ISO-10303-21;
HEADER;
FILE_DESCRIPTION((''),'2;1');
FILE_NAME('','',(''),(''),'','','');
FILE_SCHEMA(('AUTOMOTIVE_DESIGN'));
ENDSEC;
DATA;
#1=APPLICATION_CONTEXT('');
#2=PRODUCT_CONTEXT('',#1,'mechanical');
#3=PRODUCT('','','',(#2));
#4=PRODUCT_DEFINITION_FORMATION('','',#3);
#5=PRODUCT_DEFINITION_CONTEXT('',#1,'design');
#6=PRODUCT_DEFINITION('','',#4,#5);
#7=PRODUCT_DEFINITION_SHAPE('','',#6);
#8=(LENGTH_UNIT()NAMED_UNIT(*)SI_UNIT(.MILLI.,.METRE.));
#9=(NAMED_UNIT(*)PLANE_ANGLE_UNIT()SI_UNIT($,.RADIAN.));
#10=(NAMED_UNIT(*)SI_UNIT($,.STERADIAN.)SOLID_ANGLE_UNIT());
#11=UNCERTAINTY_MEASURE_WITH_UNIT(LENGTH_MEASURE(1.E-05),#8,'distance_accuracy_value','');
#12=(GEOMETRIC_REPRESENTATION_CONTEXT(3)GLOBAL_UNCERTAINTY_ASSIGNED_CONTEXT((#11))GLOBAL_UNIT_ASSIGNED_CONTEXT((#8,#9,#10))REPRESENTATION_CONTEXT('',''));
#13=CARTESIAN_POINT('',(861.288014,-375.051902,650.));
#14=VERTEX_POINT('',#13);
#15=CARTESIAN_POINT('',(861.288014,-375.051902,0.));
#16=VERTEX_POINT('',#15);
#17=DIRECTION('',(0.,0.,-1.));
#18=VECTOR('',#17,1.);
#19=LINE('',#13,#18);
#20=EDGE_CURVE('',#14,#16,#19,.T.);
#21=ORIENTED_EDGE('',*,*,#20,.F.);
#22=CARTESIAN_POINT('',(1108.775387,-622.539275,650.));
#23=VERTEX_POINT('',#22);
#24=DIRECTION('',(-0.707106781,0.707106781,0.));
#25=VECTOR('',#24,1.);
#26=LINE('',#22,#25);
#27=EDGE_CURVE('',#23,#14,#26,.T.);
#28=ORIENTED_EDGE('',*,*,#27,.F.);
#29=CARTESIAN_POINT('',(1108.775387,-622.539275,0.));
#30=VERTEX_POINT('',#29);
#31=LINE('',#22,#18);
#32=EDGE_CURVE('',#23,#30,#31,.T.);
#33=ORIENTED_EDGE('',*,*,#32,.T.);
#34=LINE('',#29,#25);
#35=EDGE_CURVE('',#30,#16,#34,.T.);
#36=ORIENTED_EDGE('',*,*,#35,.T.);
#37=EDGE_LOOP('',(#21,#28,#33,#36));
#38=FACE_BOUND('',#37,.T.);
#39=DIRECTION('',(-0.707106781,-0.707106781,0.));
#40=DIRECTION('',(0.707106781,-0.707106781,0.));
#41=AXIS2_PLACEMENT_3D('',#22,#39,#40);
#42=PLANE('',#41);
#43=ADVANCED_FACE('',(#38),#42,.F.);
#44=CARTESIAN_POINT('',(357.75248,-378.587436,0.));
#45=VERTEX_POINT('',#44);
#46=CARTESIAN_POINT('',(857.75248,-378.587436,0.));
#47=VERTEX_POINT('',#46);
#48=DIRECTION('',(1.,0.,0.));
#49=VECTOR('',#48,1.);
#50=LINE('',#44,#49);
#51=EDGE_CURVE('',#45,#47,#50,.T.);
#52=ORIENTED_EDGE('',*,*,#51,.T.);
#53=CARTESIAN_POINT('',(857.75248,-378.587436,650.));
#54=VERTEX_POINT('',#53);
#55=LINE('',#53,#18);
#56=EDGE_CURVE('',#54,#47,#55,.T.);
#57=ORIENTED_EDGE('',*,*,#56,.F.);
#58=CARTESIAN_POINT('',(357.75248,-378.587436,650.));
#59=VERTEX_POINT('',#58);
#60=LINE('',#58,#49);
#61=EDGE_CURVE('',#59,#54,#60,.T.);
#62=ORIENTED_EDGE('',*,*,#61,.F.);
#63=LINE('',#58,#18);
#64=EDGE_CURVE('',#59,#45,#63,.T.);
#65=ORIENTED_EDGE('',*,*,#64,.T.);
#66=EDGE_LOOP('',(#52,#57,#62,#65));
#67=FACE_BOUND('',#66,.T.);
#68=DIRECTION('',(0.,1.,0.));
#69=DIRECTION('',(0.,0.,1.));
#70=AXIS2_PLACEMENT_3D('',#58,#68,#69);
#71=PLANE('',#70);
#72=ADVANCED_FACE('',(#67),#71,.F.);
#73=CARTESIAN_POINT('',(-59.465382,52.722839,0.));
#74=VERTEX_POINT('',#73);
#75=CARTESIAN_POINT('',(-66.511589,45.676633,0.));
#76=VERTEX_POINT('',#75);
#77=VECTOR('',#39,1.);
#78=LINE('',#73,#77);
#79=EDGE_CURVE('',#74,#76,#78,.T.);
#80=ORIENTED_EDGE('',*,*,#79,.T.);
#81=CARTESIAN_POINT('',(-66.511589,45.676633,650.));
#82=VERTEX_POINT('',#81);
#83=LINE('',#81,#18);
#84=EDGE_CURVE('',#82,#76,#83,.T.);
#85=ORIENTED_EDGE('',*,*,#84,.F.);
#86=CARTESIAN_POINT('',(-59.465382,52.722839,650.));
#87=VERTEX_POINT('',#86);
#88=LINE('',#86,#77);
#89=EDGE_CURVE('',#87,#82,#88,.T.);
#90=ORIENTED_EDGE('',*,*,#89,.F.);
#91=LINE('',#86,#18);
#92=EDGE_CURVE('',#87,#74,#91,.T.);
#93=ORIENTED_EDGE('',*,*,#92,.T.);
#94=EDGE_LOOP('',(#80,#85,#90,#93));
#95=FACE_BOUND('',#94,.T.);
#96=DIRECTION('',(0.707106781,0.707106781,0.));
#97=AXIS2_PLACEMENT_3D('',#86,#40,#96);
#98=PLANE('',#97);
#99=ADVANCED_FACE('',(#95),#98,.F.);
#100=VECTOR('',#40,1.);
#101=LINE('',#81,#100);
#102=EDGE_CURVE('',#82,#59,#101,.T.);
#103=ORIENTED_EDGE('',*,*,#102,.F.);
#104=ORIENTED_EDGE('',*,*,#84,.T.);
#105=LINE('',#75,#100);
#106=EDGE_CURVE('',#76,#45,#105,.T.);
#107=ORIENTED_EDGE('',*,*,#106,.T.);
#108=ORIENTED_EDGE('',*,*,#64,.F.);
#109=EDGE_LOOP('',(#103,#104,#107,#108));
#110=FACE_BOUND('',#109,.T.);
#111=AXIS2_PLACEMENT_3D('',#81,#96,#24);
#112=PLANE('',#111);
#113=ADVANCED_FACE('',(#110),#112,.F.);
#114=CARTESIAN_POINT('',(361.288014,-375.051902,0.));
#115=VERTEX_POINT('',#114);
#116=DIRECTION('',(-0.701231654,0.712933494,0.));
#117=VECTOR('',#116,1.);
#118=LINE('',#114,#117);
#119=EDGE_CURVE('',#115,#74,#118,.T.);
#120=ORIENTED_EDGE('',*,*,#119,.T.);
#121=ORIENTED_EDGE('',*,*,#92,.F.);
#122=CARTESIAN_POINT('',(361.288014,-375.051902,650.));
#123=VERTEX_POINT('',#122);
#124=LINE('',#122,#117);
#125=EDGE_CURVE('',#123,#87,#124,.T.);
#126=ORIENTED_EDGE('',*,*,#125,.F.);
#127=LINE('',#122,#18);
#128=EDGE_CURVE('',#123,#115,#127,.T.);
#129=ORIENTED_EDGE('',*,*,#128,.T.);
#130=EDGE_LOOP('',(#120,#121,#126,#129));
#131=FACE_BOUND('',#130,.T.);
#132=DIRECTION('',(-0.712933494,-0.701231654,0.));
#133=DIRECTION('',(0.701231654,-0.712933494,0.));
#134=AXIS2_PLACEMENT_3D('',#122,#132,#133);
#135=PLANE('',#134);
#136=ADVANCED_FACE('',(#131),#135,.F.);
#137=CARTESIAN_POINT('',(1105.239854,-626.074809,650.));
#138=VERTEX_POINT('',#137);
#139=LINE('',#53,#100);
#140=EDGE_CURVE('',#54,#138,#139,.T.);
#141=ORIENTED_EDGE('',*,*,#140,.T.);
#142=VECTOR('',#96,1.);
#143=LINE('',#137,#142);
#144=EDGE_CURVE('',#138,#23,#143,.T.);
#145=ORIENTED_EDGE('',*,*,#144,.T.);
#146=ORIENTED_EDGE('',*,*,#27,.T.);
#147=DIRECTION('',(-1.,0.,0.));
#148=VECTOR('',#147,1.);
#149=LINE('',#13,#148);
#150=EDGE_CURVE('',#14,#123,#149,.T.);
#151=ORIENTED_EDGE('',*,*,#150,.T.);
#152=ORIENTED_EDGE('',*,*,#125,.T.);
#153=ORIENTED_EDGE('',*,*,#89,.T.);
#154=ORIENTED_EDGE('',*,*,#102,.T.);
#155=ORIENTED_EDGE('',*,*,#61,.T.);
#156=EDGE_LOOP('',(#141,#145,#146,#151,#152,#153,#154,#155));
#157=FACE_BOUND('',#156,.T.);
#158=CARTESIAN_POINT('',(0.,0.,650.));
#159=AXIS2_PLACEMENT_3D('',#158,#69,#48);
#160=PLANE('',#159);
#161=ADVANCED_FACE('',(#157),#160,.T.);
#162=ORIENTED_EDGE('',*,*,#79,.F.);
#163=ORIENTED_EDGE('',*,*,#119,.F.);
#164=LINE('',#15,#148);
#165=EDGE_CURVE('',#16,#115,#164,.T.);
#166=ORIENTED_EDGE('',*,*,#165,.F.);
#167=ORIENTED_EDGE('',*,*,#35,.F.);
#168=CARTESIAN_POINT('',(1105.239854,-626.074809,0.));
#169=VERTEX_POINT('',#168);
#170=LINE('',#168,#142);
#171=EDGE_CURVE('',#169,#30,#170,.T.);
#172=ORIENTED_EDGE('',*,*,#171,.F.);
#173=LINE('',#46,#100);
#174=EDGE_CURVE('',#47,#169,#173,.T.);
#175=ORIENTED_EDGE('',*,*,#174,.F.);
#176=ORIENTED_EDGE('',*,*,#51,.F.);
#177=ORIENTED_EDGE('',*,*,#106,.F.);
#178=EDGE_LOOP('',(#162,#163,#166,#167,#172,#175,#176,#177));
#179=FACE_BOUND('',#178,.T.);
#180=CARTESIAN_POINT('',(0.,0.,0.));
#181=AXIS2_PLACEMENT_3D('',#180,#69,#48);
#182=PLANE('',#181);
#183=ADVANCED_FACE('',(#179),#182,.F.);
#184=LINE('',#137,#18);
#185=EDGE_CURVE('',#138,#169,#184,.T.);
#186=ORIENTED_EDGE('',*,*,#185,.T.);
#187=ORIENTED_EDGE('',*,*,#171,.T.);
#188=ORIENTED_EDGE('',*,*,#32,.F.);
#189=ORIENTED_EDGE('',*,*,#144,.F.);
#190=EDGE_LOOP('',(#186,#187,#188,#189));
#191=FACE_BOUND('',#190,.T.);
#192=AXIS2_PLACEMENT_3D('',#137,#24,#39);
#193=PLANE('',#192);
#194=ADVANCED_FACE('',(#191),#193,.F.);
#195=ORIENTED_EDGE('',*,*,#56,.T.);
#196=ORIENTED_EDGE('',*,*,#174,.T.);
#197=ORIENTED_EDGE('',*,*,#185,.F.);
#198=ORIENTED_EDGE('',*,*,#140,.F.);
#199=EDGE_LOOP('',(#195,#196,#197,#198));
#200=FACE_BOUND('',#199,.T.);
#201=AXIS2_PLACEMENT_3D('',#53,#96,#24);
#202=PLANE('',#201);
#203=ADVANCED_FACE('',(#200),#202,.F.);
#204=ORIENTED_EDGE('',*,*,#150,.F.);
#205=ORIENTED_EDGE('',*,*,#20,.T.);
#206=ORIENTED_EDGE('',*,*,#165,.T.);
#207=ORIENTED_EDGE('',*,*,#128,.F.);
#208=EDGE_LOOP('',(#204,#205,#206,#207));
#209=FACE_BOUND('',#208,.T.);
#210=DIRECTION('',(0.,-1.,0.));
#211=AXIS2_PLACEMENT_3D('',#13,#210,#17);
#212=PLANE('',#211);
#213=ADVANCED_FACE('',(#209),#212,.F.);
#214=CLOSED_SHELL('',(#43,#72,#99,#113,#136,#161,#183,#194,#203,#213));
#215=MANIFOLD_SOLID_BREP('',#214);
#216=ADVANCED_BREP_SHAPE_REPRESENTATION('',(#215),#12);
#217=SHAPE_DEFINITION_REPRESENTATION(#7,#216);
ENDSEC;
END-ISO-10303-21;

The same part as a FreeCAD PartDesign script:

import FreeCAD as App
import Part
import Sketcher
Q = App.Units.Quantity


def add_polygon(sketch, points):
    """Adds a closed chain of lines whose ends are joined by coincident constraints."""
    first, n = sketch.GeometryCount, len(points)
    for a, b in zip(points, points[1:] + points[:1]):
        sketch.addGeometry(Part.LineSegment(App.Vector(*a, 0), App.Vector(*b, 0)), False)
    for i in range(n):
        sketch.addConstraint(Sketcher.Constraint("Coincident", first + i, 2, first + (i + 1) % n, 1))

doc = App.newDocument("Part")
body = doc.addObject("PartDesign::Body", "Body")

sketch1 = body.newObject("Sketcher::SketchObject", "Sketch")
sketch1.AttachmentSupport = (doc.getObject("XY_Plane"), [""])
sketch1.MapMode = "FlatFace"
add_polygon(sketch1, [(-67, 46), (358, -379), (858, -379), (1105, -626), (1109, -623), (861, -375), (361, -375), (-59, 53)])
sketch1.addConstraint(Sketcher.Constraint("Horizontal", 1))
sketch1.addConstraint(Sketcher.Constraint("Horizontal", 5))
sketch1.addConstraint(Sketcher.Constraint("Parallel", 0, 2))
sketch1.addConstraint(Sketcher.Constraint("Perpendicular", 2, 3))
sketch1.addConstraint(Sketcher.Constraint("Perpendicular", 3, 4))
sketch1.addConstraint(Sketcher.Constraint("Perpendicular", 4, 7))
sketch1.addConstraint(Sketcher.Constraint("Equal", 1, 5))
sketch1.addConstraint(Sketcher.Constraint("Equal", 2, 4))
sketch1.addConstraint(Sketcher.Constraint("DistanceX", 1, 1, 1, 2, Q("500 mm")))
sketch1.addConstraint(Sketcher.Constraint("Angle", 0, Q("-45 deg")))
sketch1.addConstraint(Sketcher.Constraint("Distance", 0, Q("600 mm")))
sketch1.addConstraint(Sketcher.Constraint("Distance", 2, Q("350 mm")))
sketch1.addConstraint(Sketcher.Constraint("Distance", 3, Q("5 mm")))
sketch1.addConstraint(Sketcher.Constraint("DistanceY", 4, 2, -1, 1, Q("375.051902 mm")))
sketch1.addConstraint(Sketcher.Constraint("Distance", 6, Q("600.020541 mm")))
sketch1.addConstraint(Sketcher.Constraint("DistanceX", -1, 1, 0, 2, Q("357.75248 mm")))
pad1 = body.newObject("PartDesign::Pad", "Pad")
pad1.Profile = sketch1
pad1.Length = 650

doc.recompute()
